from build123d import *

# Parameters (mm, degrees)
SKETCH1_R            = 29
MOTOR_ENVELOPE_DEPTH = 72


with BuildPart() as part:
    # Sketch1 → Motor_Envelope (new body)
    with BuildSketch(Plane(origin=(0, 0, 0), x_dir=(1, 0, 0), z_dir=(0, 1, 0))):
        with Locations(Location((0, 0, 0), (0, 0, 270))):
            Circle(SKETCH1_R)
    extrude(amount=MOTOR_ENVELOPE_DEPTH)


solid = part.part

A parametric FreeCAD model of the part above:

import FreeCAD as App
import Part
import Sketcher
from FreeCAD import Vector
Q = App.Units.Quantity

doc = App.newDocument("Part")
body = doc.addObject("PartDesign::Body", "Body")

# Sketch on XZ plane
sketch1 = body.newObject("Sketcher::SketchObject", "Sketch")
sketch1.AttachmentSupport = (doc.getObject("XZ_Plane"), [""])
sketch1.MapMode = "FlatFace"
sketch1.addGeometry(Part.Circle(Vector(0, 0, 0), Vector(0, 0, 1), 29), False)
sketch1.addConstraint([
    Sketcher.Constraint("Coincident", 0, 3, -1, 1),
    Sketcher.Constraint("Diameter", 0, Q("58 mm")),
])
pad1 = body.newObject("PartDesign::Pad", "Pad")
pad1.Profile = sketch1
pad1.Length = 72
pad1.Reversed = True

doc.recompute()
